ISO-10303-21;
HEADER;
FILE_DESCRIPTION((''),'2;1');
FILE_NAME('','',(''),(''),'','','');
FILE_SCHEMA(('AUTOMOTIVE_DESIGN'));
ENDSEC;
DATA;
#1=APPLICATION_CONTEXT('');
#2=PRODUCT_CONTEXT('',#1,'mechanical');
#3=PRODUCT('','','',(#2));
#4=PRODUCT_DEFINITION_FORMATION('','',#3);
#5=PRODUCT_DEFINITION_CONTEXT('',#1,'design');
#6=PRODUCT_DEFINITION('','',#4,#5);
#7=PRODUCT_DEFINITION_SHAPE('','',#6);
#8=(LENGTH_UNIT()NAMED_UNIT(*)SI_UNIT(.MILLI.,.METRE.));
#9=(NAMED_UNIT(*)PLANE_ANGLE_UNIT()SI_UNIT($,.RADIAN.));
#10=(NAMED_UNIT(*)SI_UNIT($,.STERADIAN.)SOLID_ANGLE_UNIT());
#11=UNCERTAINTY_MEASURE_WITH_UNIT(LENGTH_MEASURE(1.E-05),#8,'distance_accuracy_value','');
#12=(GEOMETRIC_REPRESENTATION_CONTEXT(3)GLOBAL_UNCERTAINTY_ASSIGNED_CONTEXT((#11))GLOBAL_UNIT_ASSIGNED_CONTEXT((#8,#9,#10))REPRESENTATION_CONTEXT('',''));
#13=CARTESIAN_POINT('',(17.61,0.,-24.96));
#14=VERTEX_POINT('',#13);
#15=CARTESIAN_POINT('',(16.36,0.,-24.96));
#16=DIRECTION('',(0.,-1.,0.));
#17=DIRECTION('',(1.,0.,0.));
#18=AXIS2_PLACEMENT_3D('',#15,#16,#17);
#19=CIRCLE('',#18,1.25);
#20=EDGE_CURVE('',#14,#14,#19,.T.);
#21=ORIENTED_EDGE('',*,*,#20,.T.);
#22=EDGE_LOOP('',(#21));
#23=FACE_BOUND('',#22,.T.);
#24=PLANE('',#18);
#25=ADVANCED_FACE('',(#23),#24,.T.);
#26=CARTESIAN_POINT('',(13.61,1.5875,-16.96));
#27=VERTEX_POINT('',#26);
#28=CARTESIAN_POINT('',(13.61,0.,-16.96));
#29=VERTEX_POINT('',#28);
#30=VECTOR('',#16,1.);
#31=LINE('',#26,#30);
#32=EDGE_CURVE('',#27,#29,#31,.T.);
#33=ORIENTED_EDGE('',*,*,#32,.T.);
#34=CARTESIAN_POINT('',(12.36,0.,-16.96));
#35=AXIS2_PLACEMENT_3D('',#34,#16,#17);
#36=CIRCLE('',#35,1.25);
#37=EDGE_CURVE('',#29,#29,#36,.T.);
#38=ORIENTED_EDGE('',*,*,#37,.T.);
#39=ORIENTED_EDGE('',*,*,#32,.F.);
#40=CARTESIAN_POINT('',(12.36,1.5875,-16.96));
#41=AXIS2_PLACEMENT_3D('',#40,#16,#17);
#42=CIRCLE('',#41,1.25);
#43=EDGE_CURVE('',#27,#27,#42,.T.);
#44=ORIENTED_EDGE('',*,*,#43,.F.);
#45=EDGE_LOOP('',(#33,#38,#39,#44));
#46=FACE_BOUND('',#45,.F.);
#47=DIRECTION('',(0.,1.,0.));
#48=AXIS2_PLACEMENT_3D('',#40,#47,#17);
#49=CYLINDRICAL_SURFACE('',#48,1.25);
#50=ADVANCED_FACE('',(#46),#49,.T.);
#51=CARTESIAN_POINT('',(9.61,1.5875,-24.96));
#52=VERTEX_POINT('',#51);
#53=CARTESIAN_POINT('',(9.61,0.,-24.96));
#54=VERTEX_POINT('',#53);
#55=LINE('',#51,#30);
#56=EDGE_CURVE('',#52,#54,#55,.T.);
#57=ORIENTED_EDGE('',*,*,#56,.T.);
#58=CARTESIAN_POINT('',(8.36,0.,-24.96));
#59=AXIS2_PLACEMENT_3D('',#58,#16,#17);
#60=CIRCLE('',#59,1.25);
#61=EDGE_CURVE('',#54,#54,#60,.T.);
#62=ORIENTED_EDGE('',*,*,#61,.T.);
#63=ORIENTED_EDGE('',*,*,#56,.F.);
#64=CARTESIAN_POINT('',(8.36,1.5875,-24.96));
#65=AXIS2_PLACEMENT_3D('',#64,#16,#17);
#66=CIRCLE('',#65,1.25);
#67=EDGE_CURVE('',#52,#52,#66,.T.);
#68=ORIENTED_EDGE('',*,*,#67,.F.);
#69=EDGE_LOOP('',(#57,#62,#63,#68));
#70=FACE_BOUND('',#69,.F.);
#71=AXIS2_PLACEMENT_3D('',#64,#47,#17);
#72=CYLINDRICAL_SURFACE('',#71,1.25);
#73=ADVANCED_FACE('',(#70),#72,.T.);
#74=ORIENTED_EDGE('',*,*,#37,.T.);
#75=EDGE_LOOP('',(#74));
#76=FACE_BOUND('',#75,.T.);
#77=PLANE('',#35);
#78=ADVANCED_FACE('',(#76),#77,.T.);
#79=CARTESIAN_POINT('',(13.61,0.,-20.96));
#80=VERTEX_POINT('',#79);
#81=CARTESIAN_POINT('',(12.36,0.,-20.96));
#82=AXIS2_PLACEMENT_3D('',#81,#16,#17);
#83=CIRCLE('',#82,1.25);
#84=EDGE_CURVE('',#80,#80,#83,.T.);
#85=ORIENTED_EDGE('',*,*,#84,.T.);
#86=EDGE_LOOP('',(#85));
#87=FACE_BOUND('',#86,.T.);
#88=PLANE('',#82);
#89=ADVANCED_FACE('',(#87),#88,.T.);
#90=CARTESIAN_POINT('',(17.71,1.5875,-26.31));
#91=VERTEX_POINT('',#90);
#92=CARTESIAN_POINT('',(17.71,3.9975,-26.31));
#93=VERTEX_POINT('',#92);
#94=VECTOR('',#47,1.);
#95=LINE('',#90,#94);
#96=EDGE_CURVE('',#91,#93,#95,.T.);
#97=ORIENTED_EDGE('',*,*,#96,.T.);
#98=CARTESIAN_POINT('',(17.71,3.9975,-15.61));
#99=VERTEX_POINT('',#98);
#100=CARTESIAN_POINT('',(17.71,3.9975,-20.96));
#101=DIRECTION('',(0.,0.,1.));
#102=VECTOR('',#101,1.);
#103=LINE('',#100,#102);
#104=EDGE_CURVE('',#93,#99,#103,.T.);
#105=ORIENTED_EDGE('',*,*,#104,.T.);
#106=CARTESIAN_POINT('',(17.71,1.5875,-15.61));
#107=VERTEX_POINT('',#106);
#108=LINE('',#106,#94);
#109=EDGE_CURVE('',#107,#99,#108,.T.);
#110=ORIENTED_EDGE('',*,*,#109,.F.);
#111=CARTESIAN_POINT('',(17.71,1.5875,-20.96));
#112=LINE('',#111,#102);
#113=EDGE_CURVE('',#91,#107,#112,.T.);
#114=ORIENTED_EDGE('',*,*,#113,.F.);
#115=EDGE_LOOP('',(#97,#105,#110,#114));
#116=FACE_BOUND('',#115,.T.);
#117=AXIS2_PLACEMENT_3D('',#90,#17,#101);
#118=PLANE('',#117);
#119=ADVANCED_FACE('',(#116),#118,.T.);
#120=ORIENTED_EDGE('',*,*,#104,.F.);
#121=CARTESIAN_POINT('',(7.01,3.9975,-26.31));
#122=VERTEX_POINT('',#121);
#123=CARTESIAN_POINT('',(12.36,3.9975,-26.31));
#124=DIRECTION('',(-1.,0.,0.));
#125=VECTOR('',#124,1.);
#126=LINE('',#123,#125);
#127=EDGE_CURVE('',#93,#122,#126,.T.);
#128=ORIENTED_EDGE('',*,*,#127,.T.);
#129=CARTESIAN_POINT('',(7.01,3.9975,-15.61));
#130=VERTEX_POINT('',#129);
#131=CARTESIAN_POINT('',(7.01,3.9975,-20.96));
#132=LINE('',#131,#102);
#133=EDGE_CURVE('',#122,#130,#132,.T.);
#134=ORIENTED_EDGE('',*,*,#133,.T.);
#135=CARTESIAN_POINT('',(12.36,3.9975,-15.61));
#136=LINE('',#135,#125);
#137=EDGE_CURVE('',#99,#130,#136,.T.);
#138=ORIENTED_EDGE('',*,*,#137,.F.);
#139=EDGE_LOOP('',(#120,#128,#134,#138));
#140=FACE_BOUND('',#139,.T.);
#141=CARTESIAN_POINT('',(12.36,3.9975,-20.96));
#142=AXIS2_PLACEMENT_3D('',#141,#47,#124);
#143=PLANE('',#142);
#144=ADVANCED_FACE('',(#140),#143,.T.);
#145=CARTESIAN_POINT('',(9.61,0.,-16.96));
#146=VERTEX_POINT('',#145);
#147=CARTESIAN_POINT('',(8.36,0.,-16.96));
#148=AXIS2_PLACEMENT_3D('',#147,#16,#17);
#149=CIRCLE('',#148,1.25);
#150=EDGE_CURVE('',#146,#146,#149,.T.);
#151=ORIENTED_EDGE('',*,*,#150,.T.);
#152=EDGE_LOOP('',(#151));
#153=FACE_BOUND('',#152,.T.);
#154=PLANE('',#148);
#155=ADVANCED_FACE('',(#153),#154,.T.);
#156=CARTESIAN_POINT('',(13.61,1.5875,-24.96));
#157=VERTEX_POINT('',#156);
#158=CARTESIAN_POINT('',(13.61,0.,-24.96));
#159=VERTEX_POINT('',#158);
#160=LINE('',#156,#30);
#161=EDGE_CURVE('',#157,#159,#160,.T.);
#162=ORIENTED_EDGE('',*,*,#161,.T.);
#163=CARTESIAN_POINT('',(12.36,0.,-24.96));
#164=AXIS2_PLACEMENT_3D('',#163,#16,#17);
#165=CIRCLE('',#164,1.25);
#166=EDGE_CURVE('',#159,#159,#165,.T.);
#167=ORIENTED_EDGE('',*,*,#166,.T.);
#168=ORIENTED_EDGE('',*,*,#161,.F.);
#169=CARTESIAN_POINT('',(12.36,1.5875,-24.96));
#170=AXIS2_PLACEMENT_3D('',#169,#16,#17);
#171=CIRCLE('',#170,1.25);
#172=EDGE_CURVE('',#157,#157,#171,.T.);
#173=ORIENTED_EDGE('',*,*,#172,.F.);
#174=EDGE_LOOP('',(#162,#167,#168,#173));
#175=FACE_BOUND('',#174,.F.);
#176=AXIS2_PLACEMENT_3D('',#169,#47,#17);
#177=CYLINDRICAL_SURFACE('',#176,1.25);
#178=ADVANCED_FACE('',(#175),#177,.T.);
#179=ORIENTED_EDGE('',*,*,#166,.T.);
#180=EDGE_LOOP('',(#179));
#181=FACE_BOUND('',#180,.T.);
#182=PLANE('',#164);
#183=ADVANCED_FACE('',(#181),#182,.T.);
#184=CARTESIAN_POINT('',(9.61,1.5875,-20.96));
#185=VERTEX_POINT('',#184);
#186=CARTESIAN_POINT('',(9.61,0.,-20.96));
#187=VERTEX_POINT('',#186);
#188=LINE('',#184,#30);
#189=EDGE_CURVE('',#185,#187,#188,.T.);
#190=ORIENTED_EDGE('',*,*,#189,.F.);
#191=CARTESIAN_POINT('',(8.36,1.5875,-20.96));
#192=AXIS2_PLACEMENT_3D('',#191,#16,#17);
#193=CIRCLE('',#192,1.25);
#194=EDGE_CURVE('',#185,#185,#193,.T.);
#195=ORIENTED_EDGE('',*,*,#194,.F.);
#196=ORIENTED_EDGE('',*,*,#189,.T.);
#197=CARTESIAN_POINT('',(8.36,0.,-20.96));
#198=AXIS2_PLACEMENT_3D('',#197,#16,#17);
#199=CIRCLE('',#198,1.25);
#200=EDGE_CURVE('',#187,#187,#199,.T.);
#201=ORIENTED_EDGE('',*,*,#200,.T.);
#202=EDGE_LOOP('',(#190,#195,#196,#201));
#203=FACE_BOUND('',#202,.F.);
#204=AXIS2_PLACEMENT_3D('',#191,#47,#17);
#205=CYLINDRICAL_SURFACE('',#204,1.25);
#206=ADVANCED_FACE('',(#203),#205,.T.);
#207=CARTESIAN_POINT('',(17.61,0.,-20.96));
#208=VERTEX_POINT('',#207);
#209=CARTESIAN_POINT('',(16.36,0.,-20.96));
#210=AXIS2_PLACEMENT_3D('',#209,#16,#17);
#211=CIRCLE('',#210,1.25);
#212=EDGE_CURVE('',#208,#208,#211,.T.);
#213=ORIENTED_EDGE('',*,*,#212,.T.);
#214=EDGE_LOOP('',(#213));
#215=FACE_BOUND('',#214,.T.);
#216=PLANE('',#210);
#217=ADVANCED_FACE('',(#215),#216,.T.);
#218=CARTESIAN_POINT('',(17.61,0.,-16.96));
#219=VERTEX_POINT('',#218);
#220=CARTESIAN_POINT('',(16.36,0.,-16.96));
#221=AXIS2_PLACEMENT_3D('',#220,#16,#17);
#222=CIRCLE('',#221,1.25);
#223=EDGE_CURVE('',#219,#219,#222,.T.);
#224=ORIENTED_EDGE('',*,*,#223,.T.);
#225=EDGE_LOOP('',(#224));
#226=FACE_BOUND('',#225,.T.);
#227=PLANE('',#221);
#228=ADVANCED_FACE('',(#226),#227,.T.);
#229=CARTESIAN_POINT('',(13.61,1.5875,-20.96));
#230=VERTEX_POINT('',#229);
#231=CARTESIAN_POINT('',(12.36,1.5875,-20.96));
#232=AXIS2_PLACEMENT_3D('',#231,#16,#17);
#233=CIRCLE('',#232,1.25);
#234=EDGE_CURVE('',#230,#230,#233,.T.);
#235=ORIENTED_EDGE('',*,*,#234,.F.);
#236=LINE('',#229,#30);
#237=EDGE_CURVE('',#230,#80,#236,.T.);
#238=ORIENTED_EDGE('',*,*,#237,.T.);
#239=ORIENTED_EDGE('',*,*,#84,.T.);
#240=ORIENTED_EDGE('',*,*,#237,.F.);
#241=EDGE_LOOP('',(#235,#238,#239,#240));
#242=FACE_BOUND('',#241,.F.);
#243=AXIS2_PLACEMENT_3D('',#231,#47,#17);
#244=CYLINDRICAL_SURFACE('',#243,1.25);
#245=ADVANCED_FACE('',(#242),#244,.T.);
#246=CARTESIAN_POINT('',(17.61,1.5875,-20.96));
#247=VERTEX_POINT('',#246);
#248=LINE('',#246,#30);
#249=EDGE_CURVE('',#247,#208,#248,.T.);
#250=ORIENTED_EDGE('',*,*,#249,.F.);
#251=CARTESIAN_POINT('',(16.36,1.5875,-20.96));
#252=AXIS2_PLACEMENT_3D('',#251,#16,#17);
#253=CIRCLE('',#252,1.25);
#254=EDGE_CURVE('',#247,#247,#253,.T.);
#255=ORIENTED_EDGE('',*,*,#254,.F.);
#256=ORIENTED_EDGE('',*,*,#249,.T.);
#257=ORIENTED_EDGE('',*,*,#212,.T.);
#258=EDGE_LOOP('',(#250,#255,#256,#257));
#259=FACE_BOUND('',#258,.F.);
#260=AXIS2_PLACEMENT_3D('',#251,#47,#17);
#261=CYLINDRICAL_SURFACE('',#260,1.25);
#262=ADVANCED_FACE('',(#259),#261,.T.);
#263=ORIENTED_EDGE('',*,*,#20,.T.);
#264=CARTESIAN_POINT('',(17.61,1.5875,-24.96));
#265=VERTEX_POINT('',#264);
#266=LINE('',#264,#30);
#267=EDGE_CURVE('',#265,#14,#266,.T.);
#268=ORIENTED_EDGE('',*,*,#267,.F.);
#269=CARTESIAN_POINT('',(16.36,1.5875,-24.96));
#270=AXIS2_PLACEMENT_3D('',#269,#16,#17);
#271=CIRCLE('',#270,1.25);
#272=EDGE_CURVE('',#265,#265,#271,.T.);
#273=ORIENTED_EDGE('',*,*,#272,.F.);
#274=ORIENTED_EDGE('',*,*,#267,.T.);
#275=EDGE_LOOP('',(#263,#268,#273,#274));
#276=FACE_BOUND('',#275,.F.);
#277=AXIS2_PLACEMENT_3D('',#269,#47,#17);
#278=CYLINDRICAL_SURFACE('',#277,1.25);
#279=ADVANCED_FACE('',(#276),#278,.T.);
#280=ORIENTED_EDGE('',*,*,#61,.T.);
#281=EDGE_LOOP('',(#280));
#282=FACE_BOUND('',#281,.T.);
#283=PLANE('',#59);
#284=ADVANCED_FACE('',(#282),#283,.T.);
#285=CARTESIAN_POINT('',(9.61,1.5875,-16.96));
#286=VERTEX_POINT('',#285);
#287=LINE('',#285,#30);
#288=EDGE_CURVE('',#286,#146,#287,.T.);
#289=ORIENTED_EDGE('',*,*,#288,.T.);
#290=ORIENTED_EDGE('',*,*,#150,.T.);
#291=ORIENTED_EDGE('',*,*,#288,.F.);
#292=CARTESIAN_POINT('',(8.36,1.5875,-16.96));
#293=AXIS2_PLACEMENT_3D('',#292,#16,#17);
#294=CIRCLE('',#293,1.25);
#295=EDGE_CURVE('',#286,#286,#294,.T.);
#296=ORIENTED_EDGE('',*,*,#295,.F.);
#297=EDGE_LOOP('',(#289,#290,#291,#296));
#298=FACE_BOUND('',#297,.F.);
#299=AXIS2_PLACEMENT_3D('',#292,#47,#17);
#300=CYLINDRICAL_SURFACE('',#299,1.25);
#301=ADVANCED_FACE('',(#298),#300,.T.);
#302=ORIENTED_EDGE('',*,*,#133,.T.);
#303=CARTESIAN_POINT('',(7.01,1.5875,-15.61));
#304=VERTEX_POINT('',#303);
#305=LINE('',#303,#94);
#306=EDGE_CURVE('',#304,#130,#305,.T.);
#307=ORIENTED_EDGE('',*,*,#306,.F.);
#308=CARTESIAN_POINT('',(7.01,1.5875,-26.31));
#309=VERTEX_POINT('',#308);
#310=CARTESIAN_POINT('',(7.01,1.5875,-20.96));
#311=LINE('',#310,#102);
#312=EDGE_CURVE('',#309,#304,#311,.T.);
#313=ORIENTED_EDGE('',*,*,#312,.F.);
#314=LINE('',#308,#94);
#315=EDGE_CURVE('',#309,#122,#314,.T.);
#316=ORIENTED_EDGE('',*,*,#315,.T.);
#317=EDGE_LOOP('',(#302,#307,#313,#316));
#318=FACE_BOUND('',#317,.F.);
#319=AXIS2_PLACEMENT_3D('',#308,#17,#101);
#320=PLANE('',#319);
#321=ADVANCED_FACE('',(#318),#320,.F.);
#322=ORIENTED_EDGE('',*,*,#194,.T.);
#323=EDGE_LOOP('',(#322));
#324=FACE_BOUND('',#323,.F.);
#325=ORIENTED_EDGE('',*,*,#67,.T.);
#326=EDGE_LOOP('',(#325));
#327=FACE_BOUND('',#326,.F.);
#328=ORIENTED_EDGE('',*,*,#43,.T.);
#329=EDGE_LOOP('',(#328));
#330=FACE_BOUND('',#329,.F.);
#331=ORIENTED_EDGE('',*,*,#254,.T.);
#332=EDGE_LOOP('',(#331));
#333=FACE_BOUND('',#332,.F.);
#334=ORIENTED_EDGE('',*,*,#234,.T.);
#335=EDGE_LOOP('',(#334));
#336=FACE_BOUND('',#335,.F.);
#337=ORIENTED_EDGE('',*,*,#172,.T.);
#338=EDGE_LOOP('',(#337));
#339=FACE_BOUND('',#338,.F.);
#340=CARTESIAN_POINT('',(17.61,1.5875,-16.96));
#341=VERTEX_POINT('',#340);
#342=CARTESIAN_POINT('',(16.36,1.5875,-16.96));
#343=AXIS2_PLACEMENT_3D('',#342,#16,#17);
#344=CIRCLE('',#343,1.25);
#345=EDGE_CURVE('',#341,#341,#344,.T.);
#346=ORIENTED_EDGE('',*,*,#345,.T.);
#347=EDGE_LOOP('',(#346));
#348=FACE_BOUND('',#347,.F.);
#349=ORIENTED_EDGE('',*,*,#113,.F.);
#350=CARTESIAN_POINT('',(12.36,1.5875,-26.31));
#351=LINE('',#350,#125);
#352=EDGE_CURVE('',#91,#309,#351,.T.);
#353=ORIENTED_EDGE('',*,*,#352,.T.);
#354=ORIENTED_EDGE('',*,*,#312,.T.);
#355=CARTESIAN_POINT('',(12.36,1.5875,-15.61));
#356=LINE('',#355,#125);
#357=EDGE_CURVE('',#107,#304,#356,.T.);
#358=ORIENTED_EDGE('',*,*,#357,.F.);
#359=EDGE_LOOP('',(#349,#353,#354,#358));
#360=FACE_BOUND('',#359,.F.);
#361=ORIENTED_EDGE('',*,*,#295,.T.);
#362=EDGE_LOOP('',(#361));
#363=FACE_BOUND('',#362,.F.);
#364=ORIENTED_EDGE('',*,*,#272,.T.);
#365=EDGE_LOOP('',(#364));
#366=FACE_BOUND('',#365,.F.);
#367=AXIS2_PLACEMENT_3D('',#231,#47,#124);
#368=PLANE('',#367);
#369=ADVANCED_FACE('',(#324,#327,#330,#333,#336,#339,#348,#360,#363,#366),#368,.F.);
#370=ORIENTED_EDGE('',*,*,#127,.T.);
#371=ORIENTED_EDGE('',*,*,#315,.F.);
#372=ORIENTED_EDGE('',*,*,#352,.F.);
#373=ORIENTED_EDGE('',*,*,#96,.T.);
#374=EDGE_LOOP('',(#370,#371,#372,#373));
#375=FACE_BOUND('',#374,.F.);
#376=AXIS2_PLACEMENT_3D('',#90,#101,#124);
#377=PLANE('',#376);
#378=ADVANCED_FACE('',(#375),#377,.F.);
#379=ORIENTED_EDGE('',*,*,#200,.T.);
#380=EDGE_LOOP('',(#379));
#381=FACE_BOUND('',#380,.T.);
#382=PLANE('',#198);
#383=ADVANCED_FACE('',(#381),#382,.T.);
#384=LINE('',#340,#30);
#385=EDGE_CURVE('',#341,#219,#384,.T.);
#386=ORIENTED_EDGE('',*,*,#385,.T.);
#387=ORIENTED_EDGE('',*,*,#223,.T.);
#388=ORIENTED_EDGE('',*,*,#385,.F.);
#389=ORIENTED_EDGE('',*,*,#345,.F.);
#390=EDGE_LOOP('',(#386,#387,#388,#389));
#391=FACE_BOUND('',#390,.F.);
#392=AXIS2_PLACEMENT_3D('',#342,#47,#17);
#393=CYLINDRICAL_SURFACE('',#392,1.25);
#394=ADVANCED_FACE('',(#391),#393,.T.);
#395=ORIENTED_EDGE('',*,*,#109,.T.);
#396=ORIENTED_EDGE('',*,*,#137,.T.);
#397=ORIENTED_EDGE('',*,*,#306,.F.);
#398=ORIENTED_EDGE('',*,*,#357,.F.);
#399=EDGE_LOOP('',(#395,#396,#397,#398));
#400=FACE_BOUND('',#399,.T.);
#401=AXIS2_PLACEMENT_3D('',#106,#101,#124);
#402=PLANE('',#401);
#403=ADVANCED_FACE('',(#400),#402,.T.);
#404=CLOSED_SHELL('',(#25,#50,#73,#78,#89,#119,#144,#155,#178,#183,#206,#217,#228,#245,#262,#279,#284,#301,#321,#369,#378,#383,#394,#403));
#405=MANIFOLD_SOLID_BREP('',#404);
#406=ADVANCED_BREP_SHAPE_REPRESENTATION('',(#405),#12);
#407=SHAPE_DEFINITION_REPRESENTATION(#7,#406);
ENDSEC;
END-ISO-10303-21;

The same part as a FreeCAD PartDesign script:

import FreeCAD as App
import Part
import Sketcher

V = App.Vector


def add_polygon(sketch, points):
    """Adds a closed chain of lines whose ends are joined by coincident constraints."""
    first, n = sketch.GeometryCount, len(points)
    for a, b in zip(points, points[1:] + points[:1]):
        sketch.addGeometry(Part.LineSegment(App.Vector(*a, 0), App.Vector(*b, 0)), False)
    for i in range(n):
        sketch.addConstraint(Sketcher.Constraint("Coincident", first + i, 2, first + (i + 1) % n, 1))

doc = App.newDocument("Part")
params = doc.addObject("Spreadsheet::Sheet", "Params")
for row, (alias, value) in enumerate([
    ("sketch1_width", "10.7 mm"),
    ("pad1_length", "2.41 mm"),
    ("sketch2_diameter", "2.5 mm"),
    ("pad2_length", "1.5875 mm"),
], start=1):
    params.set(f"A{row}", alias)
    params.set(f"B{row}", "=" + value)
    params.setAlias(f"B{row}", alias)

body = doc.addObject("PartDesign::Body", "Body")

sketch1 = body.newObject("Sketcher::SketchObject", "Sketch")
sketch1.AttachmentSupport = (doc.getObject("XZ_Plane"), [""])
sketch1.MapMode = "FlatFace"
sketch1.AttachmentOffset = App.Placement(V(0, 0, -1.5875), App.Rotation())
add_polygon(sketch1, [(18, -16), (18, -26), (7, -26), (7, -16)])
sketch1.addConstraint([
    Sketcher.Constraint("Vertical", 0),
    Sketcher.Constraint("Horizontal", 1),
    Sketcher.Constraint("Vertical", 2),
    Sketcher.Constraint("Horizontal", 3),
    Sketcher.Constraint("Equal", 3, 0),
    Sketcher.Constraint("DistanceX", 1, 2, 1, 1, 10.7),
    Sketcher.Constraint("DistanceX", -1, 1, 0, 2, 17.71),
    Sketcher.Constraint("DistanceY", 0, 2, -1, 1, 26.31),
])
sketch1.setExpression("Constraints[9]", "Params.sketch1_width")
pad1 = body.newObject("PartDesign::Pad", "Pad")
pad1.Profile = sketch1
pad1.setExpression("Length", "Params.pad1_length")
pad1.Reversed = True

sketch2 = body.newObject("Sketcher::SketchObject", "Sketch001")
sketch2.AttachmentSupport = (doc.getObject("XZ_Plane"), [""])
sketch2.MapMode = "FlatFace"
sketch2.AttachmentOffset = App.Placement(V(0, 0, -1.5875), App.Rotation())
sketch2.addGeometry([
    Part.Circle(V(16.4, -25, 0), V(0, 0, 1), 1.2),
    Part.Circle(V(12.4, -25, 0), V(0, 0, 1), 1.2),
    Part.Circle(V(8.4, -25, 0), V(0, 0, 1), 1.2),
    Part.Circle(V(16.4, -21, 0), V(0, 0, 1), 1.2),
    Part.Circle(V(12.4, -21, 0), V(0, 0, 1), 1.2),
    Part.Circle(V(8.4, -21, 0), V(0, 0, 1), 1.2),
    Part.Circle(V(16.4, -17, 0), V(0, 0, 1), 1.2),
    Part.Circle(V(12.4, -17, 0), V(0, 0, 1), 1.2),
    Part.Circle(V(8.4, -17, 0), V(0, 0, 1), 1.2),
], False)
sketch2.addConstraint([
    Sketcher.Constraint("Equal", 0, 1),
    Sketcher.Constraint("Equal", 1, 2),
    Sketcher.Constraint("Equal", 2, 3),
    Sketcher.Constraint("Equal", 3, 4),
    Sketcher.Constraint("Equal", 4, 5),
    Sketcher.Constraint("Equal", 5, 6),
    Sketcher.Constraint("Equal", 6, 7),
    Sketcher.Constraint("Equal", 7, 8),
    Sketcher.Constraint("Horizontal", 0, 3, 1, 3),
    Sketcher.Constraint("Horizontal", 1, 3, 2, 3),
    Sketcher.Constraint("Horizontal", 3, 3, 4, 3),
    Sketcher.Constraint("Horizontal", 4, 3, 5, 3),
    Sketcher.Constraint("Horizontal", 6, 3, 7, 3),
    Sketcher.Constraint("Horizontal", 7, 3, 8, 3),
    Sketcher.Constraint("Vertical", 0, 3, 3, 3),
    Sketcher.Constraint("Vertical", 1, 3, 4, 3),
    Sketcher.Constraint("Vertical", 2, 3, 5, 3),
    Sketcher.Constraint("Vertical", 3, 3, 6, 3),
    Sketcher.Constraint("Vertical", 4, 3, 7, 3),
    Sketcher.Constraint("Vertical", 5, 3, 8, 3),
    Sketcher.Constraint("Diameter", 0, 2.5),
    Sketcher.Constraint("DistanceX", 1, 3, 0, 3, 4.0),
    Sketcher.Constraint("DistanceX", 2, 3, 1, 3, 4.0),
    Sketcher.Constraint("DistanceY", 0, 3, 3, 3, 4.0),
    Sketcher.Constraint("DistanceY", 3, 3, 6, 3, 4.0),
    Sketcher.Constraint("DistanceX", -1, 1, 0, 3, 16.36),
    Sketcher.Constraint("DistanceY", 0, 3, -1, 1, 24.96),
])
sketch2.setExpression("Constraints[20]", "Params.sketch2_diameter")
pad2 = body.newObject("PartDesign::Pad", "Pad001")
pad2.Profile = sketch2
pad2.setExpression("Length", "Params.pad2_length")

doc.recompute()
